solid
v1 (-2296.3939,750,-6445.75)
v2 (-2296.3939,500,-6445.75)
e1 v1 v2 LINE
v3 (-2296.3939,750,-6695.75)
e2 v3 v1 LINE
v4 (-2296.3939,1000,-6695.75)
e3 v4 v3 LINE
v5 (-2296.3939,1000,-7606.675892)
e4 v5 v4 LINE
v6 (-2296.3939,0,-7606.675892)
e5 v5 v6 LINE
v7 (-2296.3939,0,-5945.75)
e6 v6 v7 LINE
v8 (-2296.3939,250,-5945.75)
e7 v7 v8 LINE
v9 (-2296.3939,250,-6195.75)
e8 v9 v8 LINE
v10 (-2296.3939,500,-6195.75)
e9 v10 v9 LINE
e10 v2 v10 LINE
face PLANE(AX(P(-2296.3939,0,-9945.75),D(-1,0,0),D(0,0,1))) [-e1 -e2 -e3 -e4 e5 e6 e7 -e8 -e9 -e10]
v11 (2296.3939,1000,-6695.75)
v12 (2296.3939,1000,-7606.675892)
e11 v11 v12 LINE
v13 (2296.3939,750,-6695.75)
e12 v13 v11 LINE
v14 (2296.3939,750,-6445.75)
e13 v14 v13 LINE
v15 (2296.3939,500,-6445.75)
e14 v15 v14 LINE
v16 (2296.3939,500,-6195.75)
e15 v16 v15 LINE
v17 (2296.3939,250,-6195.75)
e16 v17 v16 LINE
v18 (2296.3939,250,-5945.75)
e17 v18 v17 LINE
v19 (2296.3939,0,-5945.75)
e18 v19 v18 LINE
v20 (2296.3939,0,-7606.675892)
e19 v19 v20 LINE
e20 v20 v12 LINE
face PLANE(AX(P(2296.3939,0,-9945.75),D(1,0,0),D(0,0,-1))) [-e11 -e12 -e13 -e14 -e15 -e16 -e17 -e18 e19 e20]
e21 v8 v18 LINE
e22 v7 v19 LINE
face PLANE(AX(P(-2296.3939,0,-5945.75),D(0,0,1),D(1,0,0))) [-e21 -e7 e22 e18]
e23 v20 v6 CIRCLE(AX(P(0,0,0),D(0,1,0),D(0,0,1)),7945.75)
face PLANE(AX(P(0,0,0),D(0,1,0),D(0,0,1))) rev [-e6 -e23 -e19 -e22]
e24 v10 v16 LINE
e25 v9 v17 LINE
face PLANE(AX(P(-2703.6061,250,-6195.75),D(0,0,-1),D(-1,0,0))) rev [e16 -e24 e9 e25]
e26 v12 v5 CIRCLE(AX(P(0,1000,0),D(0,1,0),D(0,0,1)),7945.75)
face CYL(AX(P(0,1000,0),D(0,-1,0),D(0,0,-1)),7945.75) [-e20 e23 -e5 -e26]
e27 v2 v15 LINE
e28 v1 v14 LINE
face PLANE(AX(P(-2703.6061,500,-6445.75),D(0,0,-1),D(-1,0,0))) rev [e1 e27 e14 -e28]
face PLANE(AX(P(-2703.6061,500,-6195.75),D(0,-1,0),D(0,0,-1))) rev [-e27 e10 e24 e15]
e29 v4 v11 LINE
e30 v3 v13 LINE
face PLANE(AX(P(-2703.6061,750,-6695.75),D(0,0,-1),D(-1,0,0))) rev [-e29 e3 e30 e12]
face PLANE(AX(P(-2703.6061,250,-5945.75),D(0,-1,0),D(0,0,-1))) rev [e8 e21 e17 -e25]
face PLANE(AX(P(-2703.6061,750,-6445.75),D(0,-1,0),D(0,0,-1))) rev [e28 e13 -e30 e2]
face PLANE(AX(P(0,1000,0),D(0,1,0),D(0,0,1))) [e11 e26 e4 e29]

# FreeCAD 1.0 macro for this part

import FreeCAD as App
import Part
import Sketcher

V = App.Vector
Q = App.Units.Quantity


def add_polygon(sketch, points):
    """Adds a closed chain of lines whose ends are joined by coincident constraints."""
    first, n = sketch.GeometryCount, len(points)
    for a, b in zip(points, points[1:] + points[:1]):
        sketch.addGeometry(Part.LineSegment(App.Vector(*a, 0), App.Vector(*b, 0)), False)
    for i in range(n):
        sketch.addConstraint(Sketcher.Constraint("Coincident", first + i, 2, first + (i + 1) % n, 1))

doc = App.newDocument("Part")
params = doc.addObject("Spreadsheet::Sheet", "Params")
for row, (alias, value) in enumerate([
    ("sketch1_diameter", "15891.5 mm"),
    ("pad1_length", "1000 mm"),
    ("sketch2_height", "4000 mm"),
    ("pocket1_length", "1000 mm"),
    ("sketch3_width", "250 mm"),
    ("pocket2_length", "5000 mm"),
], start=1):
    params.set(f"A{row}", alias)
    params.set(f"B{row}", "=" + value)
    params.setAlias(f"B{row}", alias)

body = doc.addObject("PartDesign::Body", "Body")

sketch1 = body.newObject("Sketcher::SketchObject", "Sketch")
sketch1.AttachmentSupport = (doc.getObject("XZ_Plane"), [""])
sketch1.MapMode = "FlatFace"
sketch1.addGeometry(Part.Circle(V(0, 0, 0), V(0, 0, 1), 7946), False)
sketch1.addConstraint([
    Sketcher.Constraint("Coincident", 0, 3, -1, 1),
    Sketcher.Constraint("Diameter", 0, Q("15891.5 mm")),
])
sketch1.setExpression("Constraints[1]", "Params.sketch1_diameter")
pad1 = body.newObject("PartDesign::Pad", "Pad")
pad1.Profile = sketch1
pad1.setExpression("Length", "Params.pad1_length")
pad1.Reversed = True

sketch2 = body.newObject("Sketcher::SketchObject", "Sketch001")
sketch2.AttachmentSupport = (doc.getObject("XZ_Plane"), [""])
sketch2.MapMode = "FlatFace"
sketch2.AttachmentOffset = App.Placement(V(0, 0, -1000), App.Rotation())
add_polygon(sketch2, [(-10196, -10196), (-10196, 10196), (10196, 10196), (10196, -10196)])
add_polygon(sketch2, [(2296, -5946), (-2296, -5946), (-2296, -9946), (2296, -9946)])
sketch2.addConstraint([
    Sketcher.Constraint("Vertical", 0),
    Sketcher.Constraint("Horizontal", 1),
    Sketcher.Constraint("Vertical", 2),
    Sketcher.Constraint("Horizontal", 3),
    Sketcher.Constraint("Horizontal", 4),
    Sketcher.Constraint("Vertical", 5),
    Sketcher.Constraint("Horizontal", 6),
    Sketcher.Constraint("Vertical", 7),
    Sketcher.Constraint("Symmetric", 0, 2, 2, 2, -1, 1),
    Sketcher.Constraint("Equal", 3, 0),
    Sketcher.Constraint("DistanceY", 5, 2, 5, 1, Q("4000 mm")),
    Sketcher.Constraint("DistanceX", 1, 1, 1, 2, Q("20392.742 mm")),
    Sketcher.Constraint("DistanceY", 4, 2, -1, 1, Q("5945.75 mm")),
    Sketcher.Constraint("DistanceX", 4, 2, 4, 1, Q("4592.7878 mm")),
    Sketcher.Constraint("DistanceX", 4, 2, -1, 1, Q("2296.3939 mm")),
])
sketch2.setExpression("Constraints[18]", "Params.sketch2_height")
pocket1 = body.newObject("PartDesign::Pocket", "Pocket")
pocket1.Profile = sketch2
pocket1.setExpression("Length", "Params.pocket1_length")
pocket1.Reversed = True

sketch3 = body.newObject("Sketcher::SketchObject", "Sketch002")
sketch3.AttachmentSupport = (doc.getObject("YZ_Plane"), [""])
sketch3.MapMode = "FlatFace"
sketch3.AttachmentOffset = App.Placement(V(0, 0, 2296.3939), App.Rotation())
add_polygon(sketch3, [(250, -5946), (250, -6196), (500, -6196), (500, -6446), (750, -6446), (750, -6696), (1000, -6696), (1000, -5946)])
sketch3.addConstraint([
    Sketcher.Constraint("Vertical", 0),
    Sketcher.Constraint("Horizontal", 1),
    Sketcher.Constraint("Vertical", 2),
    Sketcher.Constraint("Horizontal", 3),
    Sketcher.Constraint("Vertical", 4),
    Sketcher.Constraint("Horizontal", 5),
    Sketcher.Constraint("Vertical", 6),
    Sketcher.Constraint("Horizontal", 7),
    Sketcher.Constraint("Equal", 1, 3),
    Sketcher.Constraint("Equal", 3, 5),
    Sketcher.Constraint("Equal", 5, 0),
    Sketcher.Constraint("Equal", 0, 2),
    Sketcher.Constraint("Equal", 2, 4),
    Sketcher.Constraint("DistanceX", 1, 1, 1, 2, Q("250 mm")),
    Sketcher.Constraint("DistanceX", -1, 1, 0, 2, Q("250 mm")),
    Sketcher.Constraint("DistanceY", 0, 2, -1, 1, Q("6195.75 mm")),
])
sketch3.setExpression("Constraints[21]", "Params.sketch3_width")
pocket2 = body.newObject("PartDesign::Pocket", "Pocket001")
pocket2.Profile = sketch3
pocket2.setExpression("Length", "Params.pocket2_length")

doc.recompute()
